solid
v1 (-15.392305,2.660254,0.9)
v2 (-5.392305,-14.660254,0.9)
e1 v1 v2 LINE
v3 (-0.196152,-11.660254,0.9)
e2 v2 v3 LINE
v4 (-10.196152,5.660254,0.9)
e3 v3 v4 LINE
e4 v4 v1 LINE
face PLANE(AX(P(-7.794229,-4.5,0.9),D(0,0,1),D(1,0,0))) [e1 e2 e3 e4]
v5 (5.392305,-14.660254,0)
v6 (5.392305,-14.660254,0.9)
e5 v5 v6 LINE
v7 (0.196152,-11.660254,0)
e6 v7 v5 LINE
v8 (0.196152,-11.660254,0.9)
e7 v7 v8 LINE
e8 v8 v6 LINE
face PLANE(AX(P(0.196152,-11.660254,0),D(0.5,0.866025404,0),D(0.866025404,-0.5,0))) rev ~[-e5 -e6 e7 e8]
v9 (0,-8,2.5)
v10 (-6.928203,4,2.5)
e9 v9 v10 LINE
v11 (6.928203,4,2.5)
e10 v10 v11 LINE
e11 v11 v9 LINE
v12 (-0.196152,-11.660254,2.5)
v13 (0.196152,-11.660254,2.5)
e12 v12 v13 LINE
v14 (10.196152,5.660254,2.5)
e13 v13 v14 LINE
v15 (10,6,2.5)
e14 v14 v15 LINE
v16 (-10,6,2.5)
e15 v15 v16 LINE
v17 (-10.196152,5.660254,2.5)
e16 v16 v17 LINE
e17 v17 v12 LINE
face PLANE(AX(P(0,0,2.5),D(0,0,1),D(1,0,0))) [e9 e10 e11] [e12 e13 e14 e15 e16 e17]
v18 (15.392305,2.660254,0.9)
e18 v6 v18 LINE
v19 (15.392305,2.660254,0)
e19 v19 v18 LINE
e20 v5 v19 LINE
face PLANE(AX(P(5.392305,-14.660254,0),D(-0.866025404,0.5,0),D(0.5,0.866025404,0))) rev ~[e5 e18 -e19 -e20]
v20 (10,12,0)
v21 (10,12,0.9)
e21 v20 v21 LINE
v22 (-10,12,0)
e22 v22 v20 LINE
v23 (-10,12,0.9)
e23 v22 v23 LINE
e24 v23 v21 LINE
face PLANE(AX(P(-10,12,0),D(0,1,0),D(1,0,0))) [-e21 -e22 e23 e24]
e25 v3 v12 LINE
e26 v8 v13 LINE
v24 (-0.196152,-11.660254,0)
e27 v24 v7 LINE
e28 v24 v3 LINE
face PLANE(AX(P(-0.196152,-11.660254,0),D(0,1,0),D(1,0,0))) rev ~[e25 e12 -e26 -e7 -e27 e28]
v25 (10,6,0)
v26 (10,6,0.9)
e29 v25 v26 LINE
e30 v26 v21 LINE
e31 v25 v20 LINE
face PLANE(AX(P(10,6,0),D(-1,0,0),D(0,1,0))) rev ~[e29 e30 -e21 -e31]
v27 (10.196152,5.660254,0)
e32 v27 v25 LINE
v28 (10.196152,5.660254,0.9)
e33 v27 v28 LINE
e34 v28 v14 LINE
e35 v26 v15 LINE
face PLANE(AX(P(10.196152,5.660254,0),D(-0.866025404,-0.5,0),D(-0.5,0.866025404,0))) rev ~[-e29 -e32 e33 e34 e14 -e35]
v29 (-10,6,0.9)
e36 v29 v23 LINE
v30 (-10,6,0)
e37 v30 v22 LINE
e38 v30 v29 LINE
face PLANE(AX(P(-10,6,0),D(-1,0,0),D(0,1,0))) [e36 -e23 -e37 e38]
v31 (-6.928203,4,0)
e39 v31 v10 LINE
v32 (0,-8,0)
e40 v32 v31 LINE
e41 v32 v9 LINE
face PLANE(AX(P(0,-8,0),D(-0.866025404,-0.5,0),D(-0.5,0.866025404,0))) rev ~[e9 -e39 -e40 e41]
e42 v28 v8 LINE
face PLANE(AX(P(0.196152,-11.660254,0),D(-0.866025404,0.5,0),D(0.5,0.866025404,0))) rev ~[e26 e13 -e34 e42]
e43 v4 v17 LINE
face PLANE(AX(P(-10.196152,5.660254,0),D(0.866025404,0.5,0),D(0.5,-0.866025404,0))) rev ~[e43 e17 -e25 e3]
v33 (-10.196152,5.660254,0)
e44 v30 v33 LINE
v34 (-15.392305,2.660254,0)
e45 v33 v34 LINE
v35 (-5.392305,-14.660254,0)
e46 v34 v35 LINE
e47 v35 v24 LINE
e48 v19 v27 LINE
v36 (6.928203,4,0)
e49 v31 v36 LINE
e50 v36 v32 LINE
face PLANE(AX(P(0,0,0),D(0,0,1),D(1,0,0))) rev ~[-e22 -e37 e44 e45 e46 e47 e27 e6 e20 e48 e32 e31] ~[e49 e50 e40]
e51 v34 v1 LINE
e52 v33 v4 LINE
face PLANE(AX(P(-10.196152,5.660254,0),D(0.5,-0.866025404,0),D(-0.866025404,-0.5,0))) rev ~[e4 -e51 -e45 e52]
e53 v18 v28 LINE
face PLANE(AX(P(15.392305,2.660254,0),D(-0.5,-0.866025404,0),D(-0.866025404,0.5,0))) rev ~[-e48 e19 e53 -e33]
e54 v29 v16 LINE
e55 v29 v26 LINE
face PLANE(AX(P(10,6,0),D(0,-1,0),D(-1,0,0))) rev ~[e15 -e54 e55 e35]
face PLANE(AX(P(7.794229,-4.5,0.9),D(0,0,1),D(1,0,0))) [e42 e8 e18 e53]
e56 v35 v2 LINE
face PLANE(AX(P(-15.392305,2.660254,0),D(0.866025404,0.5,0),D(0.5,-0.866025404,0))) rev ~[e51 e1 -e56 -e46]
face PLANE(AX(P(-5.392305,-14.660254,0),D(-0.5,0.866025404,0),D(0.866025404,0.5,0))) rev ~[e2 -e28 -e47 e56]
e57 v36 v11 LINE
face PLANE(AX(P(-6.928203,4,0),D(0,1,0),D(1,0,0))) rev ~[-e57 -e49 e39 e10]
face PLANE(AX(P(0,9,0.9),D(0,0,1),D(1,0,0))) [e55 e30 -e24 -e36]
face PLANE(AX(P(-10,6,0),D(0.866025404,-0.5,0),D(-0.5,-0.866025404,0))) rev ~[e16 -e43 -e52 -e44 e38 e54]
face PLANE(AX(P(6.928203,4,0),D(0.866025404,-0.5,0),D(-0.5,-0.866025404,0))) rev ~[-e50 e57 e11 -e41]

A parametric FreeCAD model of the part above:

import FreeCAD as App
import Part
import Sketcher

V = App.Vector
Q = App.Units.Quantity

doc = App.newDocument("Part")
params = doc.addObject("Spreadsheet::Sheet", "Params")
for row, (alias, value) in enumerate([
    ("sketch1_length", "20 mm"),
    ("sketch1_length2", "6 mm"),
    ("pad1_length", "0.9 mm"),
    ("sketch2_width", "20 mm"),
    ("sketch2_height", "6 mm"),
    ("pad2_length", "0.9 mm"),
    ("sketch3_length", "6 mm"),
    ("sketch3_length2", "20 mm"),
    ("pad3_length", "0.9 mm"),
    ("sketch4_width", "20 mm"),
    ("sketch4_length", "20 mm"),
    ("pad4_length", "2.5 mm"),
], start=1):
    params.set(f"A{row}", alias)
    params.set(f"B{row}", "=" + value)
    params.setAlias(f"B{row}", alias)

body = doc.addObject("PartDesign::Body", "Body")

# Sketch on XY plane
sketch1 = body.newObject("Sketcher::SketchObject", "Sketch")
sketch1.AttachmentSupport = (doc.getObject("XY_Plane"), [""])
sketch1.MapMode = "FlatFace"
sketch1.addGeometry([
    Part.LineSegment(V(0, -12, 0), V(-10, 6, 0)),
    Part.LineSegment(V(-10, 6, 0), V(-15, 3, 0)),
    Part.LineSegment(V(-15, 3, 0), V(-5, -15, 0)),
    Part.LineSegment(V(-5, -15, 0), V(0, -12, 0)),
], False)
sketch1.addConstraint([
    Sketcher.Constraint("Coincident", 0, 2, 1, 1),
    Sketcher.Constraint("Coincident", 1, 2, 2, 1),
    Sketcher.Constraint("Coincident", 2, 2, 3, 1),
    Sketcher.Constraint("Coincident", 3, 2, 0, 1),
    Sketcher.Constraint("Perpendicular", 0, 1),
    Sketcher.Constraint("Perpendicular", 1, 2),
    Sketcher.Constraint("Perpendicular", 2, 3),
    Sketcher.Constraint("Angle", 0, Q("120 deg")),
    Sketcher.Constraint("Distance", 0, 20.0),
    Sketcher.Constraint("Distance", 1, 6.0),
    Sketcher.Constraint("DistanceX", 0, 2, -1, 1, 10.196152),
    Sketcher.Constraint("DistanceY", -1, 1, 0, 2, 5.660254),
])
sketch1.setExpression("Constraints[8]", "Params.sketch1_length")
sketch1.setExpression("Constraints[9]", "Params.sketch1_length2")
pad1 = body.newObject("PartDesign::Pad", "Pad")
pad1.Profile = sketch1
pad1.setExpression("Length", "Params.pad1_length")
body2 = doc.addObject("PartDesign::Body", "Body001")

# Sketch on XY plane
sketch2 = body2.newObject("Sketcher::SketchObject", "Sketch001")
sketch2.AttachmentSupport = (doc.getObject("XY_Plane001"), [""])
sketch2.MapMode = "FlatFace"
sketch2.addGeometry([
    Part.LineSegment(V(-10, 12, 0), V(-10, 6, 0)),
    Part.LineSegment(V(-10, 6, 0), V(10, 6, 0)),
    Part.LineSegment(V(10, 6, 0), V(10, 12, 0)),
    Part.LineSegment(V(10, 12, 0), V(-10, 12, 0)),
], False)
sketch2.addConstraint([
    Sketcher.Constraint("Coincident", 0, 2, 1, 1),
    Sketcher.Constraint("Coincident", 1, 2, 2, 1),
    Sketcher.Constraint("Coincident", 2, 2, 3, 1),
    Sketcher.Constraint("Coincident", 3, 2, 0, 1),
    Sketcher.Constraint("Vertical", 0),
    Sketcher.Constraint("Horizontal", 1),
    Sketcher.Constraint("Vertical", 2),
    Sketcher.Constraint("Horizontal", 3),
    Sketcher.Constraint("DistanceX", 1, 1, 1, 2, 20.0),
    Sketcher.Constraint("DistanceY", 0, 2, 0, 1, 6.0),
    Sketcher.Constraint("DistanceX", 0, 2, -1, 1, 10.0),
    Sketcher.Constraint("DistanceY", -1, 1, 0, 2, 6.0),
])
sketch2.setExpression("Constraints[8]", "Params.sketch2_width")
sketch2.setExpression("Constraints[9]", "Params.sketch2_height")
pad2 = body2.newObject("PartDesign::Pad", "Pad001")
pad2.Profile = sketch2
pad2.setExpression("Length", "Params.pad2_length")
body3 = doc.addObject("PartDesign::Body", "Body002")

# Sketch on XY plane
sketch3 = body3.newObject("Sketcher::SketchObject", "Sketch002")
sketch3.AttachmentSupport = (doc.getObject("XY_Plane002"), [""])
sketch3.MapMode = "FlatFace"
sketch3.addGeometry([
    Part.LineSegment(V(15, 3, 0), V(10, 6, 0)),
    Part.LineSegment(V(10, 6, 0), V(0, -12, 0)),
    Part.LineSegment(V(0, -12, 0), V(5, -15, 0)),
    Part.LineSegment(V(5, -15, 0), V(15, 3, 0)),
], False)
sketch3.addConstraint([
    Sketcher.Constraint("Coincident", 0, 2, 1, 1),
    Sketcher.Constraint("Coincident", 1, 2, 2, 1),
    Sketcher.Constraint("Coincident", 2, 2, 3, 1),
    Sketcher.Constraint("Coincident", 3, 2, 0, 1),
    Sketcher.Constraint("Perpendicular", 0, 1),
    Sketcher.Constraint("Perpendicular", 1, 2),
    Sketcher.Constraint("Perpendicular", 2, 3),
    Sketcher.Constraint("Angle", 0, Q("150 deg")),
    Sketcher.Constraint("Distance", 0, 6.0),
    Sketcher.Constraint("Distance", 1, 20.0),
    Sketcher.Constraint("DistanceX", -1, 1, 0, 2, 10.196152),
    Sketcher.Constraint("DistanceY", -1, 1, 0, 2, 5.660254),
])
sketch3.setExpression("Constraints[8]", "Params.sketch3_length")
sketch3.setExpression("Constraints[9]", "Params.sketch3_length2")
pad3 = body3.newObject("PartDesign::Pad", "Pad002")
pad3.Profile = sketch3
pad3.setExpression("Length", "Params.pad3_length")
body.AllowCompound = True
doc.recompute()

boolean = body.newObject("PartDesign::Boolean", "Boolean")
boolean.Type = "Fuse"
boolean.addObjects([body2])
doc.recompute()

boolean2 = body.newObject("PartDesign::Boolean", "Boolean001")
boolean2.Type = "Fuse"
boolean2.addObjects([body3])

# Sketch on XY plane
sketch4 = body.newObject("Sketcher::SketchObject", "Sketch003")
sketch4.AttachmentSupport = (doc.getObject("XY_Plane"), [""])
sketch4.MapMode = "FlatFace"
sketch4.addGeometry([
    Part.LineSegment(V(10, 6, 0), V(-10, 6, 0)),  # 0
    Part.LineSegment(V(-10, 6, 0), V(-10.2, 5.66, 0)),  # 1
    Part.LineSegment(V(-10.2, 5.66, 0), V(-0.2, -11.66, 0)),  # 2
    Part.LineSegment(V(-0.2, -11.66, 0), V(0.2, -11.66, 0)),  # 3
    Part.LineSegment(V(0.2, -11.66, 0), V(10.2, 5.66, 0)),  # 4
    Part.LineSegment(V(10.2, 5.66, 0), V(10, 6, 0)),  # 5
    Part.LineSegment(V(-6.93, 4, 0), V(6.93, 4, 0)),  # 6
    Part.LineSegment(V(6.93, 4, 0), V(0, -8, 0)),  # 7
    Part.LineSegment(V(0, -8, 0), V(-6.93, 4, 0)),  # 8
], False)
sketch4.addConstraint([
    Sketcher.Constraint("Coincident", 0, 2, 1, 1),
    Sketcher.Constraint("Coincident", 1, 2, 2, 1),
    Sketcher.Constraint("Coincident", 2, 2, 3, 1),
    Sketcher.Constraint("Coincident", 3, 2, 4, 1),
    Sketcher.Constraint("Coincident", 4, 2, 5, 1),
    Sketcher.Constraint("Coincident", 5, 2, 0, 1),
    Sketcher.Constraint("Coincident", 6, 2, 7, 1),
    Sketcher.Constraint("Coincident", 7, 2, 8, 1),
    Sketcher.Constraint("Coincident", 8, 2, 6, 1),
    Sketcher.Constraint("Horizontal", 0),
    Sketcher.Constraint("Horizontal", 3),
    Sketcher.Constraint("Horizontal", 6),
    Sketcher.Constraint("Symmetric", 1, 2, 4, 2, -2),
    Sketcher.Constraint("PointOnObject", 7, 2, -2),
    Sketcher.Constraint("Parallel", 1, 4),
    Sketcher.Constraint("Parallel", 2, 5),
    Sketcher.Constraint("Parallel", 4, 7),
    Sketcher.Constraint("Parallel", 5, 8),
    Sketcher.Constraint("Equal", 2, 4),
    Sketcher.Constraint("DistanceX", 0, 2, 0, 1, 20.0),
    Sketcher.Constraint("Angle", 1, Q("-120 deg")),
    Sketcher.Constraint("Distance", 2, 20.0),
    Sketcher.Constraint("DistanceY", -1, 1, 0, 2, 6.0),
    Sketcher.Constraint("DistanceY", -1, 1, 6, 2, 4.0),
    Sketcher.Constraint("DistanceY", 7, 2, -1, 1, 8.0),
    Sketcher.Constraint("DistanceX", 3, 1, 3, 2, 0.392305),
])
sketch4.setExpression("Constraints[19]", "Params.sketch4_width")
sketch4.setExpression("Constraints[21]", "Params.sketch4_length")
pad4 = body.newObject("PartDesign::Pad", "Pad003")
pad4.Profile = sketch4
pad4.setExpression("Length", "Params.pad4_length")

doc.recompute()
